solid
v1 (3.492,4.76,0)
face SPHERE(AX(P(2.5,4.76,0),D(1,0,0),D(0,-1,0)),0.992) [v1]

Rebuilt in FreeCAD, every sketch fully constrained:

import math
import FreeCAD as App
import Part
import Sketcher
Q = App.Units.Quantity

doc = App.newDocument("Part")
body = doc.addObject("PartDesign::Body", "Body")

# Sketch on XY plane
sketch1 = body.newObject("Sketcher::SketchObject", "Sketch")
sketch1.AttachmentSupport = (doc.getObject("XY_Plane"), [""])
sketch1.MapMode = "FlatFace"
sketch1.addGeometry(Part.LineSegment(App.Vector(1.5, 4.8, 0), App.Vector(3.5, 4.8, 0)), False)
sketch1.addGeometry(Part.ArcOfCircle(Part.Circle(App.Vector(2.5, 4.8, 0), App.Vector(0, 0, 1), 1), math.radians(0), math.radians(180)), False)
sketch1.addGeometry(Part.LineSegment(App.Vector(3.5, 4.8, 0), App.Vector(1.5, 4.8, 0)), True)  # axis
sketch1.addConstraint(Sketcher.Constraint("Coincident", 0, 1, 1, 2))
sketch1.addConstraint(Sketcher.Constraint("Coincident", 1, 1, 0, 2))
sketch1.addConstraint(Sketcher.Constraint("Horizontal", 0))
sketch1.addConstraint(Sketcher.Constraint("Horizontal", 2))
sketch1.addConstraint(Sketcher.Constraint("Coincident", 2, 1, 1, 1))
sketch1.addConstraint(Sketcher.Constraint("Horizontal", 1, 3, 0, 1))
sketch1.addConstraint(Sketcher.Constraint("Equal", 0, 2))
sketch1.addConstraint(Sketcher.Constraint("Radius", 1, Q("0.992 mm")))
sketch1.addConstraint(Sketcher.Constraint("DistanceX", -1, 1, 1, 3, Q("2.5 mm")))
sketch1.addConstraint(Sketcher.Constraint("DistanceY", -1, 1, 1, 3, Q("4.76 mm")))
revolution = body.newObject("PartDesign::Revolution", "Revolution")
revolution.Profile = sketch1
revolution.ReferenceAxis = (sketch1, ["Axis0"])
revolution.Angle = 360

doc.recompute()
